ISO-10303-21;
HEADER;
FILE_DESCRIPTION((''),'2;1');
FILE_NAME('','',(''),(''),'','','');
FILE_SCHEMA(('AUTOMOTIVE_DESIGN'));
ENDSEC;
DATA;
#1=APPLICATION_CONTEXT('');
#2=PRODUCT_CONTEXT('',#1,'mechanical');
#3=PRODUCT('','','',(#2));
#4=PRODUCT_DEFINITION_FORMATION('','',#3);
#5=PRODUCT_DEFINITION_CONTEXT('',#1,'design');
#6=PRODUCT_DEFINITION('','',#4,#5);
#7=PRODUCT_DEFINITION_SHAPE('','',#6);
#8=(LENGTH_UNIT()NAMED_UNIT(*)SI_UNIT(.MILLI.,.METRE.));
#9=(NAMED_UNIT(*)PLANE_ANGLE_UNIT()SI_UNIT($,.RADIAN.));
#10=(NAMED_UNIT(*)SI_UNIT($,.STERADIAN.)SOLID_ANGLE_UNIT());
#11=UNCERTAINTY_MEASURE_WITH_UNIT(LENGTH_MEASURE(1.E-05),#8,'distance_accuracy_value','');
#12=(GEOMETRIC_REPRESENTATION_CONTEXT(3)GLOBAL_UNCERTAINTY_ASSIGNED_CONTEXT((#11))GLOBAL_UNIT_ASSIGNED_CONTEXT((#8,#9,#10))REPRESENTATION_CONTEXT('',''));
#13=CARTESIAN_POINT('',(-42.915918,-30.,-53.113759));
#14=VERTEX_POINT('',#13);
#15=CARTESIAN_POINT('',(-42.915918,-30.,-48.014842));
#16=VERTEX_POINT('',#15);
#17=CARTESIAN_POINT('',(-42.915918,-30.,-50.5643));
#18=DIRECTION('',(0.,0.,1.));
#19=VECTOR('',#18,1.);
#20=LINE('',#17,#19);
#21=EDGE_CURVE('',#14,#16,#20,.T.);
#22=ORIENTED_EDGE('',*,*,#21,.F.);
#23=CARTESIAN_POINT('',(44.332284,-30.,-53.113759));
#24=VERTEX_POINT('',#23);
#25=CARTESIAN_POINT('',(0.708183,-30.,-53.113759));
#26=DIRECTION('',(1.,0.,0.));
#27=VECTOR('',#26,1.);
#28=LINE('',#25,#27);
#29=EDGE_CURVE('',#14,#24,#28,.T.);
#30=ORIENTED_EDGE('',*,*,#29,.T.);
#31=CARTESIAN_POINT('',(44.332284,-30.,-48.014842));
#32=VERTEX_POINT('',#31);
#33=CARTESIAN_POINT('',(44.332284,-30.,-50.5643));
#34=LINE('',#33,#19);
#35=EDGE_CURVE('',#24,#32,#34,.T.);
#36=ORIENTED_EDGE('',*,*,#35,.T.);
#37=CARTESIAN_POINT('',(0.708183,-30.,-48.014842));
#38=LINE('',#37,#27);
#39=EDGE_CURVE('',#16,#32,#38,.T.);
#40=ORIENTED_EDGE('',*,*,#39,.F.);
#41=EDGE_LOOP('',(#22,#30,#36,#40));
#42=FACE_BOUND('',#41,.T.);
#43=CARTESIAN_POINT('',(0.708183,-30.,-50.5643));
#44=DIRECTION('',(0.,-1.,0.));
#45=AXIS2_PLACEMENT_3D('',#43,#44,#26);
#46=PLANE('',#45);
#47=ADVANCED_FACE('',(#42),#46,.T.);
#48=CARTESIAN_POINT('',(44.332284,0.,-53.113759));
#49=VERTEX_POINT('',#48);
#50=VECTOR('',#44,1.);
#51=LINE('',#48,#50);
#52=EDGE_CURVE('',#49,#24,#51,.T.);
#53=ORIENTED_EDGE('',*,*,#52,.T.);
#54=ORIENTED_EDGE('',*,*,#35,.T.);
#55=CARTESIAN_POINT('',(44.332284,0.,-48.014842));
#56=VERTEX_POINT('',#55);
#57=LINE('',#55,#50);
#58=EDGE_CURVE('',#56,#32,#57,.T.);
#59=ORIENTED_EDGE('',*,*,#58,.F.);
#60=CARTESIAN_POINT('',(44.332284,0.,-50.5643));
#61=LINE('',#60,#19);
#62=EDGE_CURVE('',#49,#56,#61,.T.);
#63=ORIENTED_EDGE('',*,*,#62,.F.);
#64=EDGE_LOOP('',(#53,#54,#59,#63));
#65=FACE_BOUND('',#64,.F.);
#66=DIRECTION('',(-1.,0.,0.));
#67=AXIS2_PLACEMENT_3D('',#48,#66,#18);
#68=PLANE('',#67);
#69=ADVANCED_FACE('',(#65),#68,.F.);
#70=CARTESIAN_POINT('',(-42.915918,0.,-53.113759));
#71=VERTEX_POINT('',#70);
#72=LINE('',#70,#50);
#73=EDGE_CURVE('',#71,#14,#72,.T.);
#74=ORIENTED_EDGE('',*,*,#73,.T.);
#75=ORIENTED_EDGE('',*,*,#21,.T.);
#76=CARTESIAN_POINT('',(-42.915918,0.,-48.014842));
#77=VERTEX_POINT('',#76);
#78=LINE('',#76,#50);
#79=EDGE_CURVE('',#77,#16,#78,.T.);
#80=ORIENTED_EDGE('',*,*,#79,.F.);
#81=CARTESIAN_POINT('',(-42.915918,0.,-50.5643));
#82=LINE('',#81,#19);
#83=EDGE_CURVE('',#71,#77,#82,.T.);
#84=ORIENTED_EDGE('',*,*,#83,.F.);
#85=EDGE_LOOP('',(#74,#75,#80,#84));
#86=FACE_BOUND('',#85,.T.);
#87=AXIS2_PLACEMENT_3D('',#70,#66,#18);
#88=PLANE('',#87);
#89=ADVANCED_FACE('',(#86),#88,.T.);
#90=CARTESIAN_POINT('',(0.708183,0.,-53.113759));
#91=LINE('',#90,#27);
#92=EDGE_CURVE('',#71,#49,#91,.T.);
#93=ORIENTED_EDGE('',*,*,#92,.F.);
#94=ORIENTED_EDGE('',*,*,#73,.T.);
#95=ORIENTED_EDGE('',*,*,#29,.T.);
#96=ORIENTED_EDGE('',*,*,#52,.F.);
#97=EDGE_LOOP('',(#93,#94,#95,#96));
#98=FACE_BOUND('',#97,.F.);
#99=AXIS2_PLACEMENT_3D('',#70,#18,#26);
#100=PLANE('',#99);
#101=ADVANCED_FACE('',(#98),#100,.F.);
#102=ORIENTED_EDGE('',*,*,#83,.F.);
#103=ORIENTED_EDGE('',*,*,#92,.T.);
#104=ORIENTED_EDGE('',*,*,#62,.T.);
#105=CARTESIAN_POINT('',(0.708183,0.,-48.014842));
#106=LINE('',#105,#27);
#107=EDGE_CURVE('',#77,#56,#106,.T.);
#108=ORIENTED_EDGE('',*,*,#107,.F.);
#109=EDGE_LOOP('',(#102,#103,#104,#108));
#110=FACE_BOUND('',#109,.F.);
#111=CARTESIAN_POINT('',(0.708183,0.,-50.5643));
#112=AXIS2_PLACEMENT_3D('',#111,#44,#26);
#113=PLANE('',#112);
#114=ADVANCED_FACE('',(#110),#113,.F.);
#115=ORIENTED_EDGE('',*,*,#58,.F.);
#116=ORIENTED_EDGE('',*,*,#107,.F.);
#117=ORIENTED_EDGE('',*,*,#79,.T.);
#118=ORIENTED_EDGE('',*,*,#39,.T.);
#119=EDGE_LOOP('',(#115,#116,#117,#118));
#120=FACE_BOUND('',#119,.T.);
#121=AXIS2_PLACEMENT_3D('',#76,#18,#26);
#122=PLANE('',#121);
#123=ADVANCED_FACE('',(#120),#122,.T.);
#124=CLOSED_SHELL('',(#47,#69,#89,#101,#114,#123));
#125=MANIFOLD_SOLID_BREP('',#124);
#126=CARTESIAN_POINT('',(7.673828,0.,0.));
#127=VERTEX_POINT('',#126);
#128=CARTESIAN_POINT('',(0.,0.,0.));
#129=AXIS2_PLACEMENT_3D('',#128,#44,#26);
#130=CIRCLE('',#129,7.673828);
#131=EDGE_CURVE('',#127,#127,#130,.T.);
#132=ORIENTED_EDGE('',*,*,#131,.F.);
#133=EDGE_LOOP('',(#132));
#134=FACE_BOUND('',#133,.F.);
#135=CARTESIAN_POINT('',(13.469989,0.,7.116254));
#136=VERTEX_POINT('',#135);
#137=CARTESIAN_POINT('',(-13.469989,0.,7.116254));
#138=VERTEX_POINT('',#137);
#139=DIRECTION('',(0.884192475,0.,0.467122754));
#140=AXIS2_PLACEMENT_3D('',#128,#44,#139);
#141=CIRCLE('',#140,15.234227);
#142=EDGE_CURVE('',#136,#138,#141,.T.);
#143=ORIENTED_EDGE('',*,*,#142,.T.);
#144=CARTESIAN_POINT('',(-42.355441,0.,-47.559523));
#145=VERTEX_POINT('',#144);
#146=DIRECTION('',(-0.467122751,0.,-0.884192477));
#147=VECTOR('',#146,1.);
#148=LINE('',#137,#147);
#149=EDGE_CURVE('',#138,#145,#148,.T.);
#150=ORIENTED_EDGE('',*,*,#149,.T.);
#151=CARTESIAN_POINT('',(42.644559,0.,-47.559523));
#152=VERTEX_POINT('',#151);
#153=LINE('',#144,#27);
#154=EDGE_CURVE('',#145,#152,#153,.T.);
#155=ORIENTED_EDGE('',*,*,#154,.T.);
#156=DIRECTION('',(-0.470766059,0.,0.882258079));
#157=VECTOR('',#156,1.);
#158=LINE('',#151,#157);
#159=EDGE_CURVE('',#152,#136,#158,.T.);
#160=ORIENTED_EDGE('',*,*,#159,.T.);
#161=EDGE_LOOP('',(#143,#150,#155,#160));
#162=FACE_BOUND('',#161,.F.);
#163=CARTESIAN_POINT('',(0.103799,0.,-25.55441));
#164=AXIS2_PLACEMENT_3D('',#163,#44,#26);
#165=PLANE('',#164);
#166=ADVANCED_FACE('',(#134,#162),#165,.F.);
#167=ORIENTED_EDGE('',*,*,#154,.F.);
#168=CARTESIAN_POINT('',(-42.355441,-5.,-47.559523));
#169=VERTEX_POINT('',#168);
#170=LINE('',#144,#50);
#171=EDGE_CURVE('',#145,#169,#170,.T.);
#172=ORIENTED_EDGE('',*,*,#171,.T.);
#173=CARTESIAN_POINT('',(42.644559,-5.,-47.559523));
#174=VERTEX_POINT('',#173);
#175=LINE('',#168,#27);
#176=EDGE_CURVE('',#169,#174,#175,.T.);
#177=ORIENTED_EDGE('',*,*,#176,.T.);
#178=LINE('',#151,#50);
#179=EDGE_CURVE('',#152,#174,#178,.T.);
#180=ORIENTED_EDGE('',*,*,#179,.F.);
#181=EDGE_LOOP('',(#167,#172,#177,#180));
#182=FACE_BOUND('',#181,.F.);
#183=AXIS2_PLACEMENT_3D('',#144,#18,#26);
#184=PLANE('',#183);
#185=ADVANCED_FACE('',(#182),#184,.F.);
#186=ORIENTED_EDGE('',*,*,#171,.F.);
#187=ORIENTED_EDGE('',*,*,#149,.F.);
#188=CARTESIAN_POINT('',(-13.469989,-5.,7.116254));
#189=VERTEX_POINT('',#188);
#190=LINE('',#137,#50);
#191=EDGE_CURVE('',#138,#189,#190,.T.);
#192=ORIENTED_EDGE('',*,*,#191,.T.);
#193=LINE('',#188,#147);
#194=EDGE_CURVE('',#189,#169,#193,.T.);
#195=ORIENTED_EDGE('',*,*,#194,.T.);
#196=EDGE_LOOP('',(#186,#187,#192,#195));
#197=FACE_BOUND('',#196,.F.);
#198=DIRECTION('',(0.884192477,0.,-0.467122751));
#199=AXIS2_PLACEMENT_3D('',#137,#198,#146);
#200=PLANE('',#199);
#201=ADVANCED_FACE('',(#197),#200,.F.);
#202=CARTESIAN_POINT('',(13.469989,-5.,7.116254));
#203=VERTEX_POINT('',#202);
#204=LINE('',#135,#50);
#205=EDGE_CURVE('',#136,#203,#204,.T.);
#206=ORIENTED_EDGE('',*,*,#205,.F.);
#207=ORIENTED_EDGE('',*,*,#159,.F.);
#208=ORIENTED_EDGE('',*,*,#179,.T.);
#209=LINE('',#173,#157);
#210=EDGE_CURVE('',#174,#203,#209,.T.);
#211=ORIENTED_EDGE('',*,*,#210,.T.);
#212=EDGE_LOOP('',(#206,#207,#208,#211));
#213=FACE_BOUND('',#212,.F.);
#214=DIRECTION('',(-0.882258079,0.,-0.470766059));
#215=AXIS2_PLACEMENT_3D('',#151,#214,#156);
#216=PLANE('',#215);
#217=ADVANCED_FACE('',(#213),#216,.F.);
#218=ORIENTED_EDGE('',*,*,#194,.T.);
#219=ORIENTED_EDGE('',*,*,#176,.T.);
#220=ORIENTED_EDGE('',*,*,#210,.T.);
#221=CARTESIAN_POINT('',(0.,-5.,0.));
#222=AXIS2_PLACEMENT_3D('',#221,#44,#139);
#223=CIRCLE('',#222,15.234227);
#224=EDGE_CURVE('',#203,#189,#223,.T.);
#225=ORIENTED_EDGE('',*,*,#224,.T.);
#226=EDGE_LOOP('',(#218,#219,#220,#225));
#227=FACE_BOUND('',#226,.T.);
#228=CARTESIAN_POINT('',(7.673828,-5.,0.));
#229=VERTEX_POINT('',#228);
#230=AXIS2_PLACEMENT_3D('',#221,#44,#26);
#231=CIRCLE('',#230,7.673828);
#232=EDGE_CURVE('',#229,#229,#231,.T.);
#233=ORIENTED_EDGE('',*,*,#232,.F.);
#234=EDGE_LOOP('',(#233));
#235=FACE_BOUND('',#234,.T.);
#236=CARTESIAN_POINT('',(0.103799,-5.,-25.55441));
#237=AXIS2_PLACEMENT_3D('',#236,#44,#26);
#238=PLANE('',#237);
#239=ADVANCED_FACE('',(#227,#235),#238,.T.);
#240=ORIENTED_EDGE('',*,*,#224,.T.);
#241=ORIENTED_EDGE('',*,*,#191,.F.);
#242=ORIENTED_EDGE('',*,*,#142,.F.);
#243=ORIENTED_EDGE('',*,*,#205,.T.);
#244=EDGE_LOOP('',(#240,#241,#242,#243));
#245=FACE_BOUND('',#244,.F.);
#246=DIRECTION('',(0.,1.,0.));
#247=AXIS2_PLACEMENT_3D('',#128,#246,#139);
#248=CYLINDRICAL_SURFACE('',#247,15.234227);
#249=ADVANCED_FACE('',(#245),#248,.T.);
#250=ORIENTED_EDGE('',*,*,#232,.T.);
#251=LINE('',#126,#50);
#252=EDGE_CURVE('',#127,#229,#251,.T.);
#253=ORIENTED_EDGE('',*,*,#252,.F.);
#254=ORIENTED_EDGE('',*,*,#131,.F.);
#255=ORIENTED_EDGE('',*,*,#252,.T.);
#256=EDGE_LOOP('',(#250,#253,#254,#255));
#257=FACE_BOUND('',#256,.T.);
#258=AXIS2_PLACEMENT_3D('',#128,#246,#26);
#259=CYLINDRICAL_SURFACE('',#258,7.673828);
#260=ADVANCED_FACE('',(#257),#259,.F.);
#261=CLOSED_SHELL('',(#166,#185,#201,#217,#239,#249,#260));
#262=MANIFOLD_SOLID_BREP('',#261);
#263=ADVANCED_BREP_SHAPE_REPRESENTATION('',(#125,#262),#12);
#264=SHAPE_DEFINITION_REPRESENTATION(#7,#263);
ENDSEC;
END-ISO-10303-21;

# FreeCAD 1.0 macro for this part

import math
import FreeCAD as App
import Part
import Sketcher
Q = App.Units.Quantity

doc = App.newDocument("Part")
body = doc.addObject("PartDesign::Body", "Body")

sketch1 = body.newObject("Sketcher::SketchObject", "Sketch")
sketch1.AttachmentSupport = (doc.getObject("XZ_Plane"), [""])
sketch1.MapMode = "FlatFace"
sketch1.addGeometry(Part.LineSegment(App.Vector(43, -48, 0), App.Vector(13, 7, 0)), False)
sketch1.addGeometry(Part.ArcOfCircle(Part.Circle(App.Vector(0, 0, 0), App.Vector(0, 0, 1), 15), math.radians(28), math.radians(152)), False)
sketch1.addGeometry(Part.LineSegment(App.Vector(-13, 7, 0), App.Vector(-42, -48, 0)), False)
sketch1.addGeometry(Part.LineSegment(App.Vector(-42, -48, 0), App.Vector(43, -48, 0)), False)
sketch1.addGeometry(Part.Circle(App.Vector(0, 0, 0), App.Vector(0, 0, 1), 8), False)
sketch1.addConstraint(Sketcher.Constraint("Coincident", 0, 2, 1, 1))
sketch1.addConstraint(Sketcher.Constraint("Tangent", 1, 2, 2, 1))
sketch1.addConstraint(Sketcher.Constraint("Coincident", 2, 2, 3, 1))
sketch1.addConstraint(Sketcher.Constraint("Coincident", 3, 2, 0, 1))
sketch1.addConstraint(Sketcher.Constraint("Horizontal", 3))
sketch1.addConstraint(Sketcher.Constraint("Coincident", 1, 3, -1, 1))
sketch1.addConstraint(Sketcher.Constraint("Coincident", 4, 3, -1, 1))
sketch1.addConstraint(Sketcher.Constraint("Horizontal", 0, 2, 1, 2))
sketch1.addConstraint(Sketcher.Constraint("DistanceX", 3, 1, 3, 2, Q("85 mm")))
sketch1.addConstraint(Sketcher.Constraint("Diameter", 4, Q("15.347656 mm")))
sketch1.addConstraint(Sketcher.Constraint("Radius", 1, Q("15.234227 mm")))
sketch1.addConstraint(Sketcher.Constraint("DistanceX", -1, 1, 0, 2, Q("13.469989 mm")))
sketch1.addConstraint(Sketcher.Constraint("DistanceX", 2, 2, -1, 1, Q("42.355441 mm")))
pad1 = body.newObject("PartDesign::Pad", "Pad")
pad1.Profile = sketch1
pad1.Length = 5
body2 = doc.addObject("PartDesign::Body", "Body001")

sketch2 = body2.newObject("Sketcher::SketchObject", "Sketch001")
sketch2.AttachmentSupport = (doc.getObject("XZ_Plane001"), [""])
sketch2.MapMode = "FlatFace"
sketch2.addGeometry(Part.LineSegment(App.Vector(-43, -48, 0), App.Vector(-43, -53, 0)), False)
sketch2.addGeometry(Part.LineSegment(App.Vector(-43, -53, 0), App.Vector(44, -53, 0)), False)
sketch2.addGeometry(Part.LineSegment(App.Vector(44, -53, 0), App.Vector(44, -48, 0)), False)
sketch2.addGeometry(Part.LineSegment(App.Vector(44, -48, 0), App.Vector(-43, -48, 0)), False)
sketch2.addConstraint(Sketcher.Constraint("Coincident", 0, 2, 1, 1))
sketch2.addConstraint(Sketcher.Constraint("Coincident", 1, 2, 2, 1))
sketch2.addConstraint(Sketcher.Constraint("Coincident", 2, 2, 3, 1))
sketch2.addConstraint(Sketcher.Constraint("Coincident", 3, 2, 0, 1))
sketch2.addConstraint(Sketcher.Constraint("Vertical", 0))
sketch2.addConstraint(Sketcher.Constraint("Horizontal", 1))
sketch2.addConstraint(Sketcher.Constraint("Vertical", 2))
sketch2.addConstraint(Sketcher.Constraint("Horizontal", 3))
sketch2.addConstraint(Sketcher.Constraint("DistanceX", 1, 1, 1, 2, Q("87.248202 mm")))
sketch2.addConstraint(Sketcher.Constraint("DistanceY", 0, 2, 0, 1, Q("5.098917 mm")))
sketch2.addConstraint(Sketcher.Constraint("DistanceY", 0, 2, -1, 1, Q("53.113759 mm")))
sketch2.addConstraint(Sketcher.Constraint("DistanceX", 0, 2, -1, 1, Q("42.915918 mm")))
pad2 = body2.newObject("PartDesign::Pad", "Pad001")
pad2.Profile = sketch2
pad2.Length = 30

doc.recompute()
